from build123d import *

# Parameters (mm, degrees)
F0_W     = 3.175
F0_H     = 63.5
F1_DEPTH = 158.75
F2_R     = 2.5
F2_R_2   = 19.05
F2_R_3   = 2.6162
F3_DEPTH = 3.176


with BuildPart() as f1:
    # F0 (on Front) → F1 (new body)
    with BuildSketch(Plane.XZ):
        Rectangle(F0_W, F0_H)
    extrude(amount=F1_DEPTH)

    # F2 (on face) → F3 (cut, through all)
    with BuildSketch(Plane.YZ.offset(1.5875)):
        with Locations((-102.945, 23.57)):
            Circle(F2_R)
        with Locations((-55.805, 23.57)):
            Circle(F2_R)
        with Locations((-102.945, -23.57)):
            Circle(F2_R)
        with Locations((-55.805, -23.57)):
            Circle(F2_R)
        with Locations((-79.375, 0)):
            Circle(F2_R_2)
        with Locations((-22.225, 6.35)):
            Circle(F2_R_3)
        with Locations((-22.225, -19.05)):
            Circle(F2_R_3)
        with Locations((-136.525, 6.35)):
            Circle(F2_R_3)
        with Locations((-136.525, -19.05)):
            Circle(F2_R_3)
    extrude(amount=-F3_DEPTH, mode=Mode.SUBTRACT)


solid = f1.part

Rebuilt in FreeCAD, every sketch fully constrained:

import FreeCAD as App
import Part
import Sketcher
from FreeCAD import Vector
Q = App.Units.Quantity

doc = App.newDocument("Part")
body = doc.addObject("PartDesign::Body", "Body")

sketch1 = body.newObject("Sketcher::SketchObject", "Sketch")
sketch1.AttachmentSupport = (doc.getObject("XZ_Plane"), [""])
sketch1.MapMode = "FlatFace"
sketch1.addGeometry(Part.LineSegment(Vector(-1.6, 31.8, 0), Vector(-1.6, -31.8, 0)), False)
sketch1.addGeometry(Part.LineSegment(Vector(-1.6, -31.8, 0), Vector(1.6, -31.8, 0)), False)
sketch1.addGeometry(Part.LineSegment(Vector(1.6, -31.8, 0), Vector(1.6, 31.8, 0)), False)
sketch1.addGeometry(Part.LineSegment(Vector(1.6, 31.8, 0), Vector(-1.6, 31.8, 0)), False)
sketch1.addConstraint(Sketcher.Constraint("Coincident", 0, 2, 1, 1))
sketch1.addConstraint(Sketcher.Constraint("Coincident", 1, 2, 2, 1))
sketch1.addConstraint(Sketcher.Constraint("Coincident", 2, 2, 3, 1))
sketch1.addConstraint(Sketcher.Constraint("Coincident", 3, 2, 0, 1))
sketch1.addConstraint(Sketcher.Constraint("Vertical", 0))
sketch1.addConstraint(Sketcher.Constraint("Horizontal", 1))
sketch1.addConstraint(Sketcher.Constraint("Vertical", 2))
sketch1.addConstraint(Sketcher.Constraint("Horizontal", 3))
sketch1.addConstraint(Sketcher.Constraint("Symmetric", 0, 2, 2, 2, -1, 1))
sketch1.addConstraint(Sketcher.Constraint("DistanceY", 0, 2, 0, 1, Q("2.5 in")))
sketch1.addConstraint(Sketcher.Constraint("DistanceX", 1, 1, 1, 2, Q("0.125 in")))
pad1 = body.newObject("PartDesign::Pad", "Pad")
pad1.Profile = sketch1
pad1.Length = Q("6.25 in")

sketch2 = body.newObject("Sketcher::SketchObject", "Sketch001")
sketch2.AttachmentSupport = (doc.getObject("YZ_Plane"), [""])
sketch2.MapMode = "FlatFace"
sketch2.AttachmentOffset = App.Placement(Vector(0, 0, 0.0625 * 25.4), App.Rotation())
sketch2.addGeometry(Part.Circle(Vector(-102.9, 23.6, 0), Vector(0, 0, 1), 2.5), False)
sketch2.addGeometry(Part.Circle(Vector(-55.8, 23.6, 0), Vector(0, 0, 1), 2.5), False)
sketch2.addGeometry(Part.Circle(Vector(-102.9, -23.6, 0), Vector(0, 0, 1), 2.5), False)
sketch2.addGeometry(Part.Circle(Vector(-55.8, -23.6, 0), Vector(0, 0, 1), 2.5), False)
sketch2.addGeometry(Part.Circle(Vector(-79.4, 0, 0), Vector(0, 0, 1), 19.1), False)
sketch2.addGeometry(Part.Circle(Vector(-22.2, 6.3, 0), Vector(0, 0, 1), 2.6), False)
sketch2.addGeometry(Part.Circle(Vector(-22.2, -19.1, 0), Vector(0, 0, 1), 2.6), False)
sketch2.addGeometry(Part.Circle(Vector(-136.5, 6.3, 0), Vector(0, 0, 1), 2.6), False)
sketch2.addGeometry(Part.Circle(Vector(-136.5, -19.1, 0), Vector(0, 0, 1), 2.6), False)
sketch2.addConstraint(Sketcher.Constraint("Equal", 0, 1))
sketch2.addConstraint(Sketcher.Constraint("Equal", 1, 2))
sketch2.addConstraint(Sketcher.Constraint("Equal", 2, 3))
sketch2.addConstraint(Sketcher.Constraint("Equal", 5, 6))
sketch2.addConstraint(Sketcher.Constraint("Equal", 6, 7))
sketch2.addConstraint(Sketcher.Constraint("Equal", 7, 8))
sketch2.addConstraint(Sketcher.Constraint("Symmetric", 0, 3, 2, 3, -1))
sketch2.addConstraint(Sketcher.Constraint("Symmetric", 1, 3, 3, 3, -1))
sketch2.addConstraint(Sketcher.Constraint("PointOnObject", 4, 3, -1))
sketch2.addConstraint(Sketcher.Constraint("Horizontal", 0, 3, 1, 3))
sketch2.addConstraint(Sketcher.Constraint("Horizontal", 5, 3, 7, 3))
sketch2.addConstraint(Sketcher.Constraint("Horizontal", 6, 3, 8, 3))
sketch2.addConstraint(Sketcher.Constraint("Vertical", 5, 3, 6, 3))
sketch2.addConstraint(Sketcher.Constraint("Vertical", 7, 3, 8, 3))
sketch2.addConstraint(Sketcher.Constraint("Diameter", 4, Q("1.5 in")))
sketch2.addConstraint(Sketcher.Constraint("Diameter", 5, Q("0.206 in")))
sketch2.addConstraint(Sketcher.Constraint("DistanceY", 6, 3, 5, 3, Q("1 in")))
sketch2.addConstraint(Sketcher.Constraint("Diameter", 0, Q("5 mm")))
sketch2.addConstraint(Sketcher.Constraint("DistanceY", -1, 1, 5, 3, Q("0.25 in")))
sketch2.addConstraint(Sketcher.Constraint("DistanceX", 4, 3, 5, 3, Q("2.25 in")))
sketch2.addConstraint(Sketcher.Constraint("DistanceX", 7, 3, 4, 3, Q("2.25 in")))
sketch2.addConstraint(Sketcher.Constraint("DistanceX", 4, 3, -1, 1, Q("3.125 in")))
sketch2.addConstraint(Sketcher.Constraint("DistanceX", 0, 3, -1, 1, Q("102.945 mm")))
sketch2.addConstraint(Sketcher.Constraint("DistanceY", -1, 1, 0, 3, Q("23.57 mm")))
sketch2.addConstraint(Sketcher.Constraint("DistanceX", 1, 3, -1, 1, Q("55.805 mm")))
pocket1 = body.newObject("PartDesign::Pocket", "Pocket")
pocket1.Profile = sketch2
pocket1.Type = "ThroughAll"

doc.recompute()
